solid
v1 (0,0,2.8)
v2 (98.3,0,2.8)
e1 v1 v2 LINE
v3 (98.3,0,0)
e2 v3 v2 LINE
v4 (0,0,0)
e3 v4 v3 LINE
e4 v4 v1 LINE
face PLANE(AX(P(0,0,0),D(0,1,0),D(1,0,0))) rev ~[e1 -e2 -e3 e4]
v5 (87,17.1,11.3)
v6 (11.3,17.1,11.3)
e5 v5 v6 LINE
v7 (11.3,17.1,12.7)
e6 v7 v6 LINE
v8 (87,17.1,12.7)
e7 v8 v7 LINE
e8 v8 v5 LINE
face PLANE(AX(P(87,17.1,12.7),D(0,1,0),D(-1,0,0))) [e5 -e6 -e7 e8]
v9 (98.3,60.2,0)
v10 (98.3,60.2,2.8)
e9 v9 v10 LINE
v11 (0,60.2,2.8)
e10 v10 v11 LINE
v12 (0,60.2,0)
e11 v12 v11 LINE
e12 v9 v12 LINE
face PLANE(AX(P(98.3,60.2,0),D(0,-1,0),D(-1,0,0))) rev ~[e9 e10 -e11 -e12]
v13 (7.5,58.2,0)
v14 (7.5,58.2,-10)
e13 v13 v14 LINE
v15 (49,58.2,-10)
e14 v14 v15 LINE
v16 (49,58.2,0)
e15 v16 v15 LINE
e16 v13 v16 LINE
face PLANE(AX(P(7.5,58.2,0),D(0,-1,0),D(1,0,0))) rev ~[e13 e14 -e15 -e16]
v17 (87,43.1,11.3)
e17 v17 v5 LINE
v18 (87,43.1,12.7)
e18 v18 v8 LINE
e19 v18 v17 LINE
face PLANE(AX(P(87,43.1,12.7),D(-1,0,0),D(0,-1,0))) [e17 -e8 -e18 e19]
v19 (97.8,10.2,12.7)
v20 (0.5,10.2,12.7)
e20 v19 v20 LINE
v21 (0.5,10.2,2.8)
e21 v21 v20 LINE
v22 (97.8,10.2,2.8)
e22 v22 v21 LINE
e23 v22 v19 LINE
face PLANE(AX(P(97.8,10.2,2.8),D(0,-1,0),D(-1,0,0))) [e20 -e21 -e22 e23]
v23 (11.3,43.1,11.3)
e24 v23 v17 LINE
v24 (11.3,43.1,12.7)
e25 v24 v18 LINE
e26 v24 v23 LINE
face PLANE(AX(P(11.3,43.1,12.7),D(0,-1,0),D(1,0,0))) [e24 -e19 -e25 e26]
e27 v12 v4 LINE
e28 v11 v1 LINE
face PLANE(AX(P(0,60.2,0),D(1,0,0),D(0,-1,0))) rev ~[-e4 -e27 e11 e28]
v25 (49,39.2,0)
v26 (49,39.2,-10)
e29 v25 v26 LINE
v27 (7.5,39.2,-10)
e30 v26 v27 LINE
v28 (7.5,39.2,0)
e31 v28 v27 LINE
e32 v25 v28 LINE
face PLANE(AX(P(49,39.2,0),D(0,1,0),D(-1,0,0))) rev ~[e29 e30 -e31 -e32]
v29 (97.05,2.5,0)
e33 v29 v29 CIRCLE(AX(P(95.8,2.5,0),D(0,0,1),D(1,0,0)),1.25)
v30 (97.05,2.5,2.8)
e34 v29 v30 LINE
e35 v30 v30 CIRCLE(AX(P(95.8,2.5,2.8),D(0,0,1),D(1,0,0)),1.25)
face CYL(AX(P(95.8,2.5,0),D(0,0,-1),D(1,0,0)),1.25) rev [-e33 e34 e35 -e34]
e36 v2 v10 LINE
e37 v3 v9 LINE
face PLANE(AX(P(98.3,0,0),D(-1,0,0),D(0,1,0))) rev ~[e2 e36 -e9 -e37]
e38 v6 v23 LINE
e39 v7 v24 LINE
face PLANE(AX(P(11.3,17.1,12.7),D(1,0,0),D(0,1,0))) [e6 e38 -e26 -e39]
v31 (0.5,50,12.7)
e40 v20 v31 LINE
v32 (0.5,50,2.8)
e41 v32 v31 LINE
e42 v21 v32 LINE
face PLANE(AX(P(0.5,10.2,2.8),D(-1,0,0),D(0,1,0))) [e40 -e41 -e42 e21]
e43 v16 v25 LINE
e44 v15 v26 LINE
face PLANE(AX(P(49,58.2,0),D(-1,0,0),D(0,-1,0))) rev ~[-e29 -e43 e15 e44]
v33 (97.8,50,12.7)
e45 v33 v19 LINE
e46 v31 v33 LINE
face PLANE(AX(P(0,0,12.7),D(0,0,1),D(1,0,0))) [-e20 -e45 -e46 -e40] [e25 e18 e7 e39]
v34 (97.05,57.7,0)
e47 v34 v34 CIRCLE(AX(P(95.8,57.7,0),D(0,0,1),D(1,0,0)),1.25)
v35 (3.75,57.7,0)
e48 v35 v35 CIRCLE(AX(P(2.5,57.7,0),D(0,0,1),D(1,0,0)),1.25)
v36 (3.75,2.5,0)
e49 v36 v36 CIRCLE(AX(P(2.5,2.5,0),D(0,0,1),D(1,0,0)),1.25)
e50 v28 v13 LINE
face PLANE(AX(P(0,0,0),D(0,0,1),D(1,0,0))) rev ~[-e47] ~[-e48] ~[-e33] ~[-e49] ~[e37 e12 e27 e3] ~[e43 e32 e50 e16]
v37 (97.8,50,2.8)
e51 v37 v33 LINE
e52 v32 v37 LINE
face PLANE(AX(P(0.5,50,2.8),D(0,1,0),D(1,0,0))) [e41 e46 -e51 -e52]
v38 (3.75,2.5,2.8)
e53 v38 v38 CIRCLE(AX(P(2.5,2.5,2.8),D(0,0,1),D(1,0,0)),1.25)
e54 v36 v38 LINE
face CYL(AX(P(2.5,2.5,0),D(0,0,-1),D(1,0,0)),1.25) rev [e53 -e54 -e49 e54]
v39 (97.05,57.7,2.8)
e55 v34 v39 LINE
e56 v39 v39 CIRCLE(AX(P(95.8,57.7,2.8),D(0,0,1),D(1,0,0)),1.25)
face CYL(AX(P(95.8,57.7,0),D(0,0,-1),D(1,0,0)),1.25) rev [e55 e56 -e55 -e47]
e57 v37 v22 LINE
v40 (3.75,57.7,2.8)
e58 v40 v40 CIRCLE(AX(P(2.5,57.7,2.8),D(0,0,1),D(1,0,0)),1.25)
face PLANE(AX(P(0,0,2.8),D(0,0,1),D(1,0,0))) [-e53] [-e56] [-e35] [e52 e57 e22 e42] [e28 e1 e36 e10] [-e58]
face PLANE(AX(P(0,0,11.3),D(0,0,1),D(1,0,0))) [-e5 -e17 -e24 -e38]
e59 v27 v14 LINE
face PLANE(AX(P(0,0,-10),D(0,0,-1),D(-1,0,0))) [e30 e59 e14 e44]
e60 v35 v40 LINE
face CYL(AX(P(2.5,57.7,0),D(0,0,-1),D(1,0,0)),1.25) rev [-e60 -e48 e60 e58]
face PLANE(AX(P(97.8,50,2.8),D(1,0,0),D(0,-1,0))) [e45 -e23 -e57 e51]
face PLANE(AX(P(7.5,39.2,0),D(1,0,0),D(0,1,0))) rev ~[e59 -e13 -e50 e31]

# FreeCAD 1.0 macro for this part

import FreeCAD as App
import Part
import Sketcher
from FreeCAD import Vector
Q = App.Units.Quantity


def add_polygon(sketch, points):
    """Adds a closed chain of lines whose ends are joined by coincident constraints."""
    first, n = sketch.GeometryCount, len(points)
    for a, b in zip(points, points[1:] + points[:1]):
        sketch.addGeometry(Part.LineSegment(App.Vector(*a, 0), App.Vector(*b, 0)), False)
    for i in range(n):
        sketch.addConstraint(Sketcher.Constraint("Coincident", first + i, 2, first + (i + 1) % n, 1))

doc = App.newDocument("Part")
params = doc.addObject("Spreadsheet::Sheet", "Params")
for row, (alias, value) in enumerate([
    ("sketch1_diameter", "2.5 mm"),
    ("sketch1_width", "98.3 mm"),
    ("sketch1_height", "60.2 mm"),
    ("pad1_length", "2.8 mm"),
    ("sketch2_width", "97.3 mm"),
    ("sketch2_height", "39.8 mm"),
    ("pad2_length", "9.9 mm"),
    ("sketch3_height", "26 mm"),
    ("sketch3_width", "75.7 mm"),
    ("pocket1_length", "1.4 mm"),
    ("sketch4_height", "19 mm"),
    ("sketch4_width", "41.5 mm"),
    ("pad3_length", "10 mm"),
], start=1):
    params.set(f"A{row}", alias)
    params.set(f"B{row}", "=" + value)
    params.setAlias(f"B{row}", alias)

body = doc.addObject("PartDesign::Body", "Body")

# Sketch on XY plane
sketch1 = body.newObject("Sketcher::SketchObject", "Sketch")
sketch1.AttachmentSupport = (doc.getObject("XY_Plane"), [""])
sketch1.MapMode = "FlatFace"
add_polygon(sketch1, [(0, 60.2), (0, 0), (98.3, 0), (98.3, 60.2)])  # lines 0-3
sketch1.addGeometry(Part.Circle(Vector(2.5, 2.5, 0), Vector(0, 0, 1), 1.2), False)  # 4
sketch1.addGeometry(Part.Circle(Vector(95.8, 2.5, 0), Vector(0, 0, 1), 1.2), False)  # 5
sketch1.addGeometry(Part.Circle(Vector(2.5, 57.7, 0), Vector(0, 0, 1), 1.2), False)  # 6
sketch1.addGeometry(Part.Circle(Vector(95.8, 57.7, 0), Vector(0, 0, 1), 1.2), False)  # 7
sketch1.addConstraint([
    Sketcher.Constraint("Vertical", 0),
    Sketcher.Constraint("Horizontal", 1),
    Sketcher.Constraint("Vertical", 2),
    Sketcher.Constraint("Horizontal", 3),
    Sketcher.Constraint("Coincident", 0, 2, -1, 1),
    Sketcher.Constraint("Equal", 4, 5),
    Sketcher.Constraint("Equal", 5, 6),
    Sketcher.Constraint("Equal", 6, 7),
    Sketcher.Constraint("Horizontal", 4, 3, 5, 3),
    Sketcher.Constraint("Horizontal", 6, 3, 7, 3),
    Sketcher.Constraint("Vertical", 4, 3, 6, 3),
    Sketcher.Constraint("Vertical", 5, 3, 7, 3),
    Sketcher.Constraint("Diameter", 4, Q("2.5 mm")),
    Sketcher.Constraint("DistanceX", 1, 1, 1, 2, Q("98.3 mm")),
    Sketcher.Constraint("DistanceY", 0, 2, 0, 1, Q("60.2 mm")),
    Sketcher.Constraint("DistanceX", -1, 1, 4, 3, Q("2.5 mm")),
    Sketcher.Constraint("DistanceY", -1, 1, 4, 3, Q("2.5 mm")),
    Sketcher.Constraint("DistanceX", 5, 3, 1, 2, Q("2.5 mm")),
    Sketcher.Constraint("DistanceY", 7, 3, 2, 2, Q("2.5 mm")),
])
sketch1.setExpression("Constraints[16]", "Params.sketch1_diameter")
sketch1.setExpression("Constraints[17]", "Params.sketch1_width")
sketch1.setExpression("Constraints[18]", "Params.sketch1_height")
pad1 = body.newObject("PartDesign::Pad", "Pad")
pad1.Profile = sketch1
pad1.setExpression("Length", "Params.pad1_length")

# Sketch on XY plane
sketch2 = body.newObject("Sketcher::SketchObject", "Sketch001")
sketch2.AttachmentSupport = (doc.getObject("XY_Plane"), [""])
sketch2.MapMode = "FlatFace"
sketch2.AttachmentOffset = App.Placement(Vector(0, 0, 2.8), App.Rotation())
add_polygon(sketch2, [(98, 50), (0, 50), (0, 10), (98, 10)])  # lines 0-3
sketch2.addConstraint([
    Sketcher.Constraint("Horizontal", 0),
    Sketcher.Constraint("Vertical", 1),
    Sketcher.Constraint("Horizontal", 2),
    Sketcher.Constraint("Vertical", 3),
    Sketcher.Constraint("DistanceX", 0, 2, 0, 1, Q("97.3 mm")),
    Sketcher.Constraint("DistanceY", 1, 2, 1, 1, Q("39.8 mm")),
    Sketcher.Constraint("DistanceY", -1, 1, 0, 2, Q("50 mm")),
    Sketcher.Constraint("DistanceX", -1, 1, 0, 2, Q("0.5 mm")),
])
sketch2.setExpression("Constraints[8]", "Params.sketch2_width")
sketch2.setExpression("Constraints[9]", "Params.sketch2_height")
pad2 = body.newObject("PartDesign::Pad", "Pad001")
pad2.Profile = sketch2
pad2.setExpression("Length", "Params.pad2_length")

# Sketch on XY plane
sketch3 = body.newObject("Sketcher::SketchObject", "Sketch002")
sketch3.AttachmentSupport = (doc.getObject("XY_Plane"), [""])
sketch3.MapMode = "FlatFace"
sketch3.AttachmentOffset = App.Placement(Vector(0, 0, 12.7), App.Rotation())
add_polygon(sketch3, [(87, 43), (11, 43), (11, 17), (87, 17)])  # lines 0-3
sketch3.addConstraint([
    Sketcher.Constraint("Horizontal", 0),
    Sketcher.Constraint("Vertical", 1),
    Sketcher.Constraint("Horizontal", 2),
    Sketcher.Constraint("Vertical", 3),
    Sketcher.Constraint("DistanceY", 1, 2, 1, 1, Q("26 mm")),
    Sketcher.Constraint("DistanceX", 0, 2, 0, 1, Q("75.7 mm")),
    Sketcher.Constraint("DistanceX", -1, 1, 2, 2, Q("87 mm")),
    Sketcher.Constraint("DistanceY", -1, 1, 0, 2, Q("43.1 mm")),
])
sketch3.setExpression("Constraints[8]", "Params.sketch3_height")
sketch3.setExpression("Constraints[9]", "Params.sketch3_width")
pocket1 = body.newObject("PartDesign::Pocket", "Pocket")
pocket1.Profile = sketch3
pocket1.setExpression("Length", "Params.pocket1_length")

# Sketch on XY plane
sketch4 = body.newObject("Sketcher::SketchObject", "Sketch003")
sketch4.AttachmentSupport = (doc.getObject("XY_Plane"), [""])
sketch4.MapMode = "FlatFace"
add_polygon(sketch4, [(8, 39), (8, 58), (49, 58), (49, 39)])  # lines 0-3
sketch4.addConstraint([
    Sketcher.Constraint("Vertical", 0),
    Sketcher.Constraint("Horizontal", 1),
    Sketcher.Constraint("Vertical", 2),
    Sketcher.Constraint("Horizontal", 3),
    Sketcher.Constraint("DistanceY", 0, 1, 0, 2, Q("19 mm")),
    Sketcher.Constraint("DistanceX", 1, 1, 1, 2, Q("41.5 mm")),
    Sketcher.Constraint("DistanceX", -1, 1, 0, 2, Q("7.5 mm")),
    Sketcher.Constraint("DistanceY", -1, 1, 0, 2, Q("58.2 mm")),
])
sketch4.setExpression("Constraints[8]", "Params.sketch4_height")
sketch4.setExpression("Constraints[9]", "Params.sketch4_width")
pad3 = body.newObject("PartDesign::Pad", "Pad002")
pad3.Profile = sketch4
pad3.setExpression("Length", "Params.pad3_length")
pad3.Reversed = True

doc.recompute()
